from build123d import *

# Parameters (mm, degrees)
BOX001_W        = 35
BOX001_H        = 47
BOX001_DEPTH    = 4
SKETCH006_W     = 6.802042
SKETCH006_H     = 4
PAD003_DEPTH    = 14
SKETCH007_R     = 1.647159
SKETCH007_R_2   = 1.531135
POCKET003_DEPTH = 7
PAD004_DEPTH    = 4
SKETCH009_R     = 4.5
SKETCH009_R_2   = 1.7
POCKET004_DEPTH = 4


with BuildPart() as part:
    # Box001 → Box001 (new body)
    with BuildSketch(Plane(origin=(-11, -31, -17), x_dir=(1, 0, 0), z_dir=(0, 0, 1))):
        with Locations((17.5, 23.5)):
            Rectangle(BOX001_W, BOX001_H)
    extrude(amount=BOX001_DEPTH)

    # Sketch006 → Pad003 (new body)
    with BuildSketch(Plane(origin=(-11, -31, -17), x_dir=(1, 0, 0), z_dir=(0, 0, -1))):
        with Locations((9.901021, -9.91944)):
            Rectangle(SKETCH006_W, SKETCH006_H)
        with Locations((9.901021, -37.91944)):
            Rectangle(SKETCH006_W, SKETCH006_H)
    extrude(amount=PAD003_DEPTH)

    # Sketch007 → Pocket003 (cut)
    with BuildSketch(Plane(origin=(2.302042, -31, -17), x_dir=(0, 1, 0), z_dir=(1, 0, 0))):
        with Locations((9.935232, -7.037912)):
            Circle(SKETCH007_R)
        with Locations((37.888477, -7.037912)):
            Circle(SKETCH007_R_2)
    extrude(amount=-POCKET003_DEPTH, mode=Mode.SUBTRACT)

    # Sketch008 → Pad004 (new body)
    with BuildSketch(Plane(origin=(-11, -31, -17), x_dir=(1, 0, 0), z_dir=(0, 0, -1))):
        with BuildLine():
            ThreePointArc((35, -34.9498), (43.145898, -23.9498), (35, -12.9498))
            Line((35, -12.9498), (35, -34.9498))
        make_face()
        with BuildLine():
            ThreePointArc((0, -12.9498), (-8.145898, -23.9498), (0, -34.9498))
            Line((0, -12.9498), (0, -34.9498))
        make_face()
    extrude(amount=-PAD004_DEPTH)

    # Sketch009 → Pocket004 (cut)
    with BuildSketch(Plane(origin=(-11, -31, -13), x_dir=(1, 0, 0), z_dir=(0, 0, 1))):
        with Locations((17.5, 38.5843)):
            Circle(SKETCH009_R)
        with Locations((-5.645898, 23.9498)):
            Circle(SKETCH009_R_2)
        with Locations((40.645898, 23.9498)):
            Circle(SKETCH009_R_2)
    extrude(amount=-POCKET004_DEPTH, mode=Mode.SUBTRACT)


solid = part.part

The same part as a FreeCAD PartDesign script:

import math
import FreeCAD as App
import Part
import Sketcher
Q = App.Units.Quantity


def add_polygon(sketch, points):
    """Adds a closed chain of lines whose ends are joined by coincident constraints."""
    first, n = sketch.GeometryCount, len(points)
    for a, b in zip(points, points[1:] + points[:1]):
        sketch.addGeometry(Part.LineSegment(App.Vector(*a, 0), App.Vector(*b, 0)), False)
    for i in range(n):
        sketch.addConstraint(Sketcher.Constraint("Coincident", first + i, 2, first + (i + 1) % n, 1))

doc = App.newDocument("Part")
body = doc.addObject("PartDesign::Body", "Body")

sketch1 = doc.addObject("Sketcher::SketchObject", "Sketch")
body.addObject(sketch1)
sketch1.AttachmentSupport = (doc.XY_Plane, [""])
sketch1.MapMode = "FlatFace"
sketch1.AttachmentOffset = App.Placement(App.Vector(0, 0, -17), App.Rotation())
add_polygon(sketch1, [(-11, 16), (-11, -31), (24, -31), (24, 16)])
sketch1.addConstraint([
    Sketcher.Constraint("Vertical", 0),
    Sketcher.Constraint("Horizontal", 1),
    Sketcher.Constraint("Vertical", 2),
    Sketcher.Constraint("Horizontal", 3),
    Sketcher.Constraint("DistanceX", 1, 1, 1, 2, Q("35 mm")),
    Sketcher.Constraint("DistanceY", 0, 2, 0, 1, Q("47 mm")),
    Sketcher.Constraint("DistanceX", 0, 2, -1, 1, Q("11 mm")),
    Sketcher.Constraint("DistanceY", 0, 2, -1, 1, Q("31 mm")),
])
pad1 = doc.addObject("PartDesign::Pad", "Pad")
body.addObject(pad1)
pad1.Profile = sketch1
pad1.Length = 4

sketch2 = doc.addObject("Sketcher::SketchObject", "Sketch001")
body.addObject(sketch2)
sketch2.AttachmentSupport = (doc.XY_Plane, [""])
sketch2.MapMode = "FlatFace"
sketch2.AttachmentOffset = App.Placement(App.Vector(0, 0, -17), App.Rotation())
add_polygon(sketch2, [(-4.5, -23.1), (-4.5, -19.1), (2.3, -19.1), (2.3, -23.1)])
add_polygon(sketch2, [(-4.5, 4.9), (-4.5, 8.9), (2.3, 8.9), (2.3, 4.9)])
sketch2.addConstraint([
    Sketcher.Constraint("Vertical", 0),
    Sketcher.Constraint("Horizontal", 1),
    Sketcher.Constraint("Vertical", 2),
    Sketcher.Constraint("Horizontal", 3),
    Sketcher.Constraint("Vertical", 4),
    Sketcher.Constraint("Horizontal", 5),
    Sketcher.Constraint("Vertical", 6),
    Sketcher.Constraint("Horizontal", 7),
    Sketcher.Constraint("Vertical", 3, 2, 4, 2),
    Sketcher.Constraint("Vertical", 2, 2, 5, 2),
    Sketcher.Constraint("Equal", 2, 4),
    Sketcher.Constraint("DistanceY", 0, 1, 0, 2, Q("4 mm")),
    Sketcher.Constraint("DistanceY", 0, 2, 4, 2, Q("28 mm")),
    Sketcher.Constraint("DistanceX", 0, 2, -1, 1, Q("4.5 mm")),
    Sketcher.Constraint("DistanceX", 1, 1, 1, 2, Q("6.802042 mm")),
    Sketcher.Constraint("DistanceY", 0, 2, -1, 1, Q("19.08056 mm")),
])
pad2 = doc.addObject("PartDesign::Pad", "Pad001")
body.addObject(pad2)
pad2.Profile = sketch2
pad2.Length = 14
pad2.Reversed = True

sketch3 = doc.addObject("Sketcher::SketchObject", "Sketch002")
body.addObject(sketch3)
sketch3.AttachmentSupport = (doc.YZ_Plane, [""])
sketch3.MapMode = "FlatFace"
sketch3.AttachmentOffset = App.Placement(App.Vector(0, 0, 2.302042), App.Rotation())
sketch3.addGeometry([
    Part.Circle(App.Vector(-21.1, -24, 0), App.Vector(0, 0, 1), 1.6),
    Part.Circle(App.Vector(6.9, -24, 0), App.Vector(0, 0, 1), 1.5),
], False)
sketch3.addConstraint([
    Sketcher.Constraint("Horizontal", 0, 3, 1, 3),
    Sketcher.Constraint("Diameter", 0, Q("3.294318 mm")),
    Sketcher.Constraint("Diameter", 1, Q("3.06227 mm")),
    Sketcher.Constraint("DistanceX", 0, 3, -1, 1, Q("21.064768 mm")),
    Sketcher.Constraint("DistanceY", 0, 3, -1, 1, Q("24.037912 mm")),
    Sketcher.Constraint("DistanceX", -1, 1, 1, 3, Q("6.888477 mm")),
])
pocket1 = doc.addObject("PartDesign::Pocket", "Pocket")
body.addObject(pocket1)
pocket1.Profile = sketch3
pocket1.Length = 7

sketch4 = doc.addObject("Sketcher::SketchObject", "Sketch003")
body.addObject(sketch4)
sketch4.AttachmentSupport = (doc.XY_Plane, [""])
sketch4.MapMode = "FlatFace"
sketch4.AttachmentOffset = App.Placement(App.Vector(0, 0, -17), App.Rotation())
sketch4.addGeometry([
    Part.ArcOfCircle(Part.Circle(App.Vector(21, -7, 0), App.Vector(0, 0, 1), 12), math.radians(-73), math.radians(73)),
    Part.LineSegment(App.Vector(24, -18, 0), App.Vector(24, 4, 0)),
    Part.ArcOfCircle(Part.Circle(App.Vector(-8, -7, 0), App.Vector(0, 0, 1), 12), math.radians(107), math.radians(253)),
    Part.LineSegment(App.Vector(-11, 4, 0), App.Vector(-11, -18, 0)),
], False)
sketch4.addConstraint([
    Sketcher.Constraint("Coincident", 0, 1, 1, 1),
    Sketcher.Constraint("Coincident", 1, 2, 0, 2),
    Sketcher.Constraint("Coincident", 2, 1, 3, 1),
    Sketcher.Constraint("Coincident", 3, 2, 2, 2),
    Sketcher.Constraint("Vertical", 1),
    Sketcher.Constraint("Vertical", 3),
    Sketcher.Constraint("Equal", 0, 2),
    Sketcher.Constraint("Horizontal", 0, 3, 2, 3),
    Sketcher.Constraint("Horizontal", 1, 2, 2, 1),
    Sketcher.Constraint("Radius", 0, Q("11.5 mm")),
    Sketcher.Constraint("DistanceY", 1, 1, 1, 2, Q("22 mm")),
    Sketcher.Constraint("DistanceX", -1, 1, 0, 1, Q("24 mm")),
    Sketcher.Constraint("DistanceX", 2, 1, -1, 1, Q("11 mm")),
    Sketcher.Constraint("DistanceY", 0, 3, -1, 1, Q("7.0502 mm")),
])
pad3 = doc.addObject("PartDesign::Pad", "Pad002")
body.addObject(pad3)
pad3.Profile = sketch4
pad3.Length = 4

sketch5 = doc.addObject("Sketcher::SketchObject", "Sketch004")
body.addObject(sketch5)
sketch5.AttachmentSupport = (doc.XY_Plane, [""])
sketch5.MapMode = "FlatFace"
sketch5.AttachmentOffset = App.Placement(App.Vector(0, 0, -13), App.Rotation())
sketch5.addGeometry([
    Part.Circle(App.Vector(6.5, 7.6, 0), App.Vector(0, 0, 1), 4.5),
    Part.Circle(App.Vector(-16.6, -7.1, 0), App.Vector(0, 0, 1), 1.7),
    Part.Circle(App.Vector(29.6, -7.1, 0), App.Vector(0, 0, 1), 1.7),
], False)
sketch5.addConstraint([
    Sketcher.Constraint("Equal", 1, 2),
    Sketcher.Constraint("Horizontal", 1, 3, 2, 3),
    Sketcher.Constraint("Diameter", 0, Q("9 mm")),
    Sketcher.Constraint("Diameter", 1, Q("3.4 mm")),
    Sketcher.Constraint("DistanceX", -1, 1, 0, 3, Q("6.5 mm")),
    Sketcher.Constraint("DistanceY", -1, 1, 0, 3, Q("7.5843 mm")),
    Sketcher.Constraint("DistanceY", 1, 3, -1, 1, Q("7.0502 mm")),
    Sketcher.Constraint("DistanceX", 1, 3, -1, 1, Q("16.645898 mm")),
    Sketcher.Constraint("DistanceX", -1, 1, 2, 3, Q("29.645898 mm")),
])
pocket2 = doc.addObject("PartDesign::Pocket", "Pocket001")
body.addObject(pocket2)
pocket2.Profile = sketch5
pocket2.Length = 4

doc.recompute()
